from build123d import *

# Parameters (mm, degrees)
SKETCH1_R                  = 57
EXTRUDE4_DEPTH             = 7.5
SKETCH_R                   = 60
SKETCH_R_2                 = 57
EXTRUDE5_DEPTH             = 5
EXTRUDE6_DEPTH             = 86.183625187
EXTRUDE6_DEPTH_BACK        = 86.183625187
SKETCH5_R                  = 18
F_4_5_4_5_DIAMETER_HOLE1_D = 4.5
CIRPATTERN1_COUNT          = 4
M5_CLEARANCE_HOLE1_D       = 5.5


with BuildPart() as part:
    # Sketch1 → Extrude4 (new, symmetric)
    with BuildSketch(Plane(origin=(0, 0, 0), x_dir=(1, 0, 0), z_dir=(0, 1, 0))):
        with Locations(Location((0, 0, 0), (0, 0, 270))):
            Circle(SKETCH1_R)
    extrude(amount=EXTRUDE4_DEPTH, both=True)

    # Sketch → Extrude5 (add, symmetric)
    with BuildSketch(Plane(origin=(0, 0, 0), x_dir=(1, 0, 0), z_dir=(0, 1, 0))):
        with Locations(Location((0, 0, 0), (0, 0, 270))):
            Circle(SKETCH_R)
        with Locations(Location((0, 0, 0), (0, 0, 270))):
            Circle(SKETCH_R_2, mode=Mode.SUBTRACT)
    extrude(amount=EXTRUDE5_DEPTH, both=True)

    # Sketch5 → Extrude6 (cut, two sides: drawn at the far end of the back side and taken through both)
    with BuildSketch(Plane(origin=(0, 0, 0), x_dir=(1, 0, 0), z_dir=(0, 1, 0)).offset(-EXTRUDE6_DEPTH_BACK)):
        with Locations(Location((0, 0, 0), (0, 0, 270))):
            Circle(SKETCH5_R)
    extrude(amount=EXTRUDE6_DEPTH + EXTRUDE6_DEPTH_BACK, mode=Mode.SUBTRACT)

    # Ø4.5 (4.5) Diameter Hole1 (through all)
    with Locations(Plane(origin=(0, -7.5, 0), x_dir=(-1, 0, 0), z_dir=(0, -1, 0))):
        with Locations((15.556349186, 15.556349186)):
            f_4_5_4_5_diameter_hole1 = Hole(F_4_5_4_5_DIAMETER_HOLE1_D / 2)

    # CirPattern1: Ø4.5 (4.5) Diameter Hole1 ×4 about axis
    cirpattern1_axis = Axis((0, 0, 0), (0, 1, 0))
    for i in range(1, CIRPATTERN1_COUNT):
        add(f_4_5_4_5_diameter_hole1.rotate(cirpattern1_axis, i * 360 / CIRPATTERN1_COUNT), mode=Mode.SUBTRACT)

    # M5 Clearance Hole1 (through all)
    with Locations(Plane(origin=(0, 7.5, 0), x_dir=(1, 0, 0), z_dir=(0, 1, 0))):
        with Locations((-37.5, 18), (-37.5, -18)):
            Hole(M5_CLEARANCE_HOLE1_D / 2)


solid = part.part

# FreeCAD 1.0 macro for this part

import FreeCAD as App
import Part
import Sketcher

doc = App.newDocument("Part")
body = doc.addObject("PartDesign::Body", "Body")

# Sketch on XZ plane
sketch1 = body.newObject("Sketcher::SketchObject", "Sketch")
sketch1.AttachmentSupport = (doc.getObject("XZ_Plane"), [""])
sketch1.MapMode = "FlatFace"
sketch1.addGeometry(Part.Circle(App.Vector(0, 0, 0), App.Vector(0, 0, 1), 57), False)
sketch1.addConstraint(Sketcher.Constraint("Coincident", 0, 3, -1, 1))
sketch1.addConstraint(Sketcher.Constraint("Diameter", 0, 114.0))
pad1 = body.newObject("PartDesign::Pad", "Pad")
pad1.Profile = sketch1
pad1.Length = 15
pad1.Midplane = True

# Sketch on XZ plane
sketch2 = body.newObject("Sketcher::SketchObject", "Sketch001")
sketch2.AttachmentSupport = (doc.getObject("XZ_Plane"), [""])
sketch2.MapMode = "FlatFace"
sketch2.addGeometry(Part.Circle(App.Vector(0, 0, 0), App.Vector(0, 0, 1), 60), False)
sketch2.addGeometry(Part.Circle(App.Vector(0, 0, 0), App.Vector(0, 0, 1), 57), False)
sketch2.addConstraint(Sketcher.Constraint("Coincident", 0, 3, -1, 1))
sketch2.addConstraint(Sketcher.Constraint("Coincident", 1, 3, -1, 1))
sketch2.addConstraint(Sketcher.Constraint("Diameter", 0, 120.0))
sketch2.addConstraint(Sketcher.Constraint("Diameter", 1, 114.0))
pad2 = body.newObject("PartDesign::Pad", "Pad001")
pad2.Profile = sketch2
pad2.Length = 10
pad2.Midplane = True

# Sketch on XZ plane
sketch3 = body.newObject("Sketcher::SketchObject", "Sketch002")
sketch3.AttachmentSupport = (doc.getObject("XZ_Plane"), [""])
sketch3.MapMode = "FlatFace"
sketch3.addGeometry(Part.Circle(App.Vector(0, 0, 0), App.Vector(0, 0, 1), 18), False)
sketch3.addConstraint(Sketcher.Constraint("Coincident", 0, 3, -1, 1))
sketch3.addConstraint(Sketcher.Constraint("Diameter", 0, 36.0))
pocket1 = body.newObject("PartDesign::Pocket", "Pocket")
pocket1.Profile = sketch3
pocket1.Type = "ThroughAll"
pocket1.Midplane = True

# Sketch on XZ plane
sketch4 = body.newObject("Sketcher::SketchObject", "Sketch003")
sketch4.AttachmentSupport = (doc.getObject("XZ_Plane"), [""])
sketch4.MapMode = "FlatFace"
sketch4.AttachmentOffset = App.Placement(App.Vector(0, 0, 7.5), App.Rotation())
sketch4.addGeometry(Part.Circle(App.Vector(-15.6, -15.6, 0), App.Vector(0, 0, 1), 2.2), False)
sketch4.addConstraint(Sketcher.Constraint("Diameter", 0, 4.5))
sketch4.addConstraint(Sketcher.Constraint("DistanceX", 0, 3, -1, 1, 15.556349))
sketch4.addConstraint(Sketcher.Constraint("DistanceY", 0, 3, -1, 1, 15.556349))
doc.recompute()
hole = body.newObject("PartDesign::Hole", "Hole")
hole.Profile = sketch4
hole.ThreadType = "None"
hole.Diameter = 4.5
hole.DepthType = "ThroughAll"
doc.recompute()

polarpattern = body.newObject("PartDesign::PolarPattern", "PolarPattern")
polarpattern.Originals = [hole]
polarpattern.Axis = (doc.getObject("Y_Axis"), [""])
polarpattern.Angle = 360
polarpattern.Occurrences = 4
body.Tip = polarpattern

# Sketch on XZ plane
sketch5 = body.newObject("Sketcher::SketchObject", "Sketch004")
sketch5.AttachmentSupport = (doc.getObject("XZ_Plane"), [""])
sketch5.MapMode = "FlatFace"
sketch5.AttachmentOffset = App.Placement(App.Vector(0, 0, -7.5), App.Rotation())
sketch5.addGeometry(Part.Circle(App.Vector(-37.5, -18, 0), App.Vector(0, 0, 1), 2.8), False)
sketch5.addGeometry(Part.Circle(App.Vector(-37.5, 18, 0), App.Vector(0, 0, 1), 2.8), False)
sketch5.addConstraint(Sketcher.Constraint("Equal", 0, 1))
sketch5.addConstraint(Sketcher.Constraint("Symmetric", 0, 3, 1, 3, -1))
sketch5.addConstraint(Sketcher.Constraint("Diameter", 0, 5.5))
sketch5.addConstraint(Sketcher.Constraint("DistanceY", 0, 3, -1, 1, 18.0))
sketch5.addConstraint(Sketcher.Constraint("DistanceX", 0, 3, -1, 1, 37.5))
doc.recompute()
hole2 = body.newObject("PartDesign::Hole", "Hole001")
hole2.Profile = sketch5
hole2.ThreadType = "None"
hole2.Diameter = 5.5
hole2.DepthType = "ThroughAll"
hole2.Reversed = True

doc.recompute()
